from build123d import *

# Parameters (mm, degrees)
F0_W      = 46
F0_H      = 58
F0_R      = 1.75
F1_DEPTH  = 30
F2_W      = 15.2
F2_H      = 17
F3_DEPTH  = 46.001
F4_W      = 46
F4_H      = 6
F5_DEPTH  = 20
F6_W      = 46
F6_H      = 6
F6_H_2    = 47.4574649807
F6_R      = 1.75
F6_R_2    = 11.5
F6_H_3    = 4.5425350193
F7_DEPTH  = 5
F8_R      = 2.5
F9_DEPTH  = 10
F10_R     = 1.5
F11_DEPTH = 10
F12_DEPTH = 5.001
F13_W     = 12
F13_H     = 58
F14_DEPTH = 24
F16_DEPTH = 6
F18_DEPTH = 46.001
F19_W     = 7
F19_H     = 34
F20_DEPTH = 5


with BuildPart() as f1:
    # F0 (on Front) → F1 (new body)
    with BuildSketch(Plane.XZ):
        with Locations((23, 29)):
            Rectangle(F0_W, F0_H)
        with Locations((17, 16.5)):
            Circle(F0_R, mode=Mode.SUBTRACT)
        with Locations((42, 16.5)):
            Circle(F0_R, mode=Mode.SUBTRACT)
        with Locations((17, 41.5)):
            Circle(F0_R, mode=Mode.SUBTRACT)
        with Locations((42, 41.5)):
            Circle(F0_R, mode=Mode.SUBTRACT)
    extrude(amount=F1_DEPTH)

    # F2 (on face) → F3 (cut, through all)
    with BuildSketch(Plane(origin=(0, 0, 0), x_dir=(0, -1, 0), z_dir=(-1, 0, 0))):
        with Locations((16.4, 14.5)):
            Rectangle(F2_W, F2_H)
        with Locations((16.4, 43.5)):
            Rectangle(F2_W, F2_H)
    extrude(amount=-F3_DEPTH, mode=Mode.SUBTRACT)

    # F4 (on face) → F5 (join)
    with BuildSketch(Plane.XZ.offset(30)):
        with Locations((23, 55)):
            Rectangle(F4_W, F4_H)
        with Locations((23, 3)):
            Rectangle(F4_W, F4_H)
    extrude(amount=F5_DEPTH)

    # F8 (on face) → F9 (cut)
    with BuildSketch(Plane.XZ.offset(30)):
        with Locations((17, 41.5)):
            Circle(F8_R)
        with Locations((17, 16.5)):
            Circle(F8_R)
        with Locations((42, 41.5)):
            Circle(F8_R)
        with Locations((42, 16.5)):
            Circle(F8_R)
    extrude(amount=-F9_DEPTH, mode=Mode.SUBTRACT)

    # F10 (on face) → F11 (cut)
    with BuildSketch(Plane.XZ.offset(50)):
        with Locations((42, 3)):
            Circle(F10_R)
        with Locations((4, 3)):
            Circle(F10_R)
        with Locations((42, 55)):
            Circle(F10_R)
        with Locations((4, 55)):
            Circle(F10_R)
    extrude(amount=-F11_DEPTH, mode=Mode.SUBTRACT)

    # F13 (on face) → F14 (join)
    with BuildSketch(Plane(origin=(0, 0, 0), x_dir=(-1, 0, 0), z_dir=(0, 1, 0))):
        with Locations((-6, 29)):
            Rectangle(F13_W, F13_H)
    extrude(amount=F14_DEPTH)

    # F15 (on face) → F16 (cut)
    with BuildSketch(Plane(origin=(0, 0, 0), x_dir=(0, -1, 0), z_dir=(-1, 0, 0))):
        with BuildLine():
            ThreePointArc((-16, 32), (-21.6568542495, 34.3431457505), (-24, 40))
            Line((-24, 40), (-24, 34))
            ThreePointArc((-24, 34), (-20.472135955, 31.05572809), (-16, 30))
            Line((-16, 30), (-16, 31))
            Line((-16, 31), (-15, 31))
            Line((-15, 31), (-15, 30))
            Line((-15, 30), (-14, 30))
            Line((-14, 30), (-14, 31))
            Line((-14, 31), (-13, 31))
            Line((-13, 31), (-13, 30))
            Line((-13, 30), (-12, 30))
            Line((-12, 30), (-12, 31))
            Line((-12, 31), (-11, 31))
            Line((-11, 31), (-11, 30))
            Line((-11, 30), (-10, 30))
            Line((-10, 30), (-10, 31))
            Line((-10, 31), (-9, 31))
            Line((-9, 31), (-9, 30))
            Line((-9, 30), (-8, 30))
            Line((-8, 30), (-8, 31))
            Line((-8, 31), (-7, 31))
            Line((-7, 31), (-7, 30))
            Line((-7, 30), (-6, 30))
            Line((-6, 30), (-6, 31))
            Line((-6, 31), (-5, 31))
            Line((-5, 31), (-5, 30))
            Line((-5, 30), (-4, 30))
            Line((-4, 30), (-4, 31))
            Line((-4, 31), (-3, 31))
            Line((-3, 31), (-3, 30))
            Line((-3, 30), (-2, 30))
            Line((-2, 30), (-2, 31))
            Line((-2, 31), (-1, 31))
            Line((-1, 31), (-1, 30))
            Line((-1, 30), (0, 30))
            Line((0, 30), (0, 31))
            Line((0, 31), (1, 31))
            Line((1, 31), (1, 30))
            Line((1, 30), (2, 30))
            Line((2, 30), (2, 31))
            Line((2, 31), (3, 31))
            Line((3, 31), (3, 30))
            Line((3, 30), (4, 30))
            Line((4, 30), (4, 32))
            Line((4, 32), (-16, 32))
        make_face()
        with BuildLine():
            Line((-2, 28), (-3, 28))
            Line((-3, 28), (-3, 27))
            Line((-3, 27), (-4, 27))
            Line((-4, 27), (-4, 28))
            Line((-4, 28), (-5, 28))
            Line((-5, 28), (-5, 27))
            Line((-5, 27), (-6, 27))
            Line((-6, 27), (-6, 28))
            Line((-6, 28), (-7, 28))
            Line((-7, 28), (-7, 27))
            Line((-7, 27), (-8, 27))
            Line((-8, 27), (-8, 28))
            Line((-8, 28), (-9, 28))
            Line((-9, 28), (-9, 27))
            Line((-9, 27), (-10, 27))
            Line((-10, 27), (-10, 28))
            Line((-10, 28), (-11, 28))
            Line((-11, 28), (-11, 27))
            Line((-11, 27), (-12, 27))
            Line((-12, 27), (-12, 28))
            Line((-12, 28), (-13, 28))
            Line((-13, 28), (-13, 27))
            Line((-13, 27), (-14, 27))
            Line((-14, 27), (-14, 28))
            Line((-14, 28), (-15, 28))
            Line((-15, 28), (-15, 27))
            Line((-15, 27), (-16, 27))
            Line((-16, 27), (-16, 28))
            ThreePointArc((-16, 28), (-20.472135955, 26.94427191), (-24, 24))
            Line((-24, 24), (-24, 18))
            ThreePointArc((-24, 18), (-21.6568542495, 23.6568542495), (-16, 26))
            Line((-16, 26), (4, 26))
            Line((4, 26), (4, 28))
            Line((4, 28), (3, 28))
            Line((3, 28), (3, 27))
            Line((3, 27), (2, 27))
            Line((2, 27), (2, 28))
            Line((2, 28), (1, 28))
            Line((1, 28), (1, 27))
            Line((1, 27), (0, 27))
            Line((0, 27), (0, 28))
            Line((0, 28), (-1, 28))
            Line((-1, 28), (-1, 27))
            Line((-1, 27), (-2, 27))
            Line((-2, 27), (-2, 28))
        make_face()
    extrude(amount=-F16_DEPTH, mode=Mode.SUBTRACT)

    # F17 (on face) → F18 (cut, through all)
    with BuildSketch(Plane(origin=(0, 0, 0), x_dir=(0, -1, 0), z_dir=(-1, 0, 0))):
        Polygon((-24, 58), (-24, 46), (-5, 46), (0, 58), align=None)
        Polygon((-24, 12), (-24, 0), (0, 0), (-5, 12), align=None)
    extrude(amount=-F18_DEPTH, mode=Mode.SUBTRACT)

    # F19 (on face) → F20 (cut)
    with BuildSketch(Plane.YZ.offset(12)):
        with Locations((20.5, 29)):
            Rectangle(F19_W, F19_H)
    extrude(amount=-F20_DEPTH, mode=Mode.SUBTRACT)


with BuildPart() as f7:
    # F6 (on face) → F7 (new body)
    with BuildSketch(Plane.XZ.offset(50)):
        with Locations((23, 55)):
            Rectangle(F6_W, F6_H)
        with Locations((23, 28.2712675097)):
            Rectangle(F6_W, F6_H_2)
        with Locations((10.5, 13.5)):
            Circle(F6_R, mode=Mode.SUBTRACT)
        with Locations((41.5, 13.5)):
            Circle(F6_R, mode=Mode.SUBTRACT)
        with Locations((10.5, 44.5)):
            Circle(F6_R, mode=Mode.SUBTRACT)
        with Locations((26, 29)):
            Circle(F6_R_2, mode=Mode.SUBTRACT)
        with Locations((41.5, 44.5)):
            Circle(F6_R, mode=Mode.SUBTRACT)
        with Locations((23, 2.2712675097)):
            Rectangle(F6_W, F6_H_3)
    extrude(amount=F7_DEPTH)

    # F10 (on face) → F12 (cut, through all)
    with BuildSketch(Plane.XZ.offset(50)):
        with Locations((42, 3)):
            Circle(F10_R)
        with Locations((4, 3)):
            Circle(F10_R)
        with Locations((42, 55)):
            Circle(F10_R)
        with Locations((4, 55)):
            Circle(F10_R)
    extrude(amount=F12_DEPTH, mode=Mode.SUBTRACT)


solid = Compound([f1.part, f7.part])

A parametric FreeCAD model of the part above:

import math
import FreeCAD as App
import Part
import Sketcher


def add_polygon(sketch, points):
    """Adds a closed chain of lines whose ends are joined by coincident constraints."""
    first, n = sketch.GeometryCount, len(points)
    for a, b in zip(points, points[1:] + points[:1]):
        sketch.addGeometry(Part.LineSegment(App.Vector(*a, 0), App.Vector(*b, 0)), False)
    for i in range(n):
        sketch.addConstraint(Sketcher.Constraint("Coincident", first + i, 2, first + (i + 1) % n, 1))

doc = App.newDocument("Part")
body = doc.addObject("PartDesign::Body", "Body")

# Sketch on XZ plane
sketch1 = doc.addObject("Sketcher::SketchObject", "Sketch")
body.addObject(sketch1)
sketch1.AttachmentSupport = (doc.XZ_Plane, [""])
sketch1.MapMode = "FlatFace"
add_polygon(sketch1, [(0, 58), (0, 0), (46, 0), (46, 58)])  # lines 0-3
sketch1.addGeometry(Part.Circle(App.Vector(17, 16.5, 0), App.Vector(0, 0, 1), 1.75), False)  # 4
sketch1.addGeometry(Part.Circle(App.Vector(42, 16.5, 0), App.Vector(0, 0, 1), 1.75), False)  # 5
sketch1.addGeometry(Part.Circle(App.Vector(17, 41.5, 0), App.Vector(0, 0, 1), 1.75), False)  # 6
sketch1.addGeometry(Part.Circle(App.Vector(42, 41.5, 0), App.Vector(0, 0, 1), 1.75), False)  # 7
sketch1.addConstraint(Sketcher.Constraint("Vertical", 0))
sketch1.addConstraint(Sketcher.Constraint("Horizontal", 1))
sketch1.addConstraint(Sketcher.Constraint("Vertical", 2))
sketch1.addConstraint(Sketcher.Constraint("Horizontal", 3))
sketch1.addConstraint(Sketcher.Constraint("Coincident", 0, 2, -1, 1))
sketch1.addConstraint(Sketcher.Constraint("Equal", 4, 5))
sketch1.addConstraint(Sketcher.Constraint("Equal", 5, 6))
sketch1.addConstraint(Sketcher.Constraint("Equal", 6, 7))
sketch1.addConstraint(Sketcher.Constraint("Horizontal", 4, 3, 5, 3))
sketch1.addConstraint(Sketcher.Constraint("Horizontal", 6, 3, 7, 3))
sketch1.addConstraint(Sketcher.Constraint("Vertical", 4, 3, 6, 3))
sketch1.addConstraint(Sketcher.Constraint("Vertical", 5, 3, 7, 3))
sketch1.addConstraint(Sketcher.Constraint("Diameter", 4, 3.5))
sketch1.addConstraint(Sketcher.Constraint("DistanceX", 1, 1, 1, 2, 46.0))
sketch1.addConstraint(Sketcher.Constraint("DistanceY", 0, 2, 0, 1, 58.0))
sketch1.addConstraint(Sketcher.Constraint("DistanceX", -1, 1, 4, 3, 17.0))
sketch1.addConstraint(Sketcher.Constraint("DistanceX", -1, 1, 5, 3, 42.0))
sketch1.addConstraint(Sketcher.Constraint("DistanceY", 4, 3, 6, 3, 25.0))
sketch1.addConstraint(Sketcher.Constraint("DistanceY", -1, 1, 4, 3, 16.5))
pad1 = doc.addObject("PartDesign::Pad", "Pad")
body.addObject(pad1)
pad1.Profile = sketch1
pad1.Length = 30

# Sketch on YZ plane
sketch2 = doc.addObject("Sketcher::SketchObject", "Sketch001")
body.addObject(sketch2)
sketch2.AttachmentSupport = (doc.YZ_Plane, [""])
sketch2.MapMode = "FlatFace"
add_polygon(sketch2, [(-8.8, 23), (-8.8, 6), (-24, 6), (-24, 23)])  # lines 0-3
add_polygon(sketch2, [(-8.8, 52), (-8.8, 35), (-24, 35), (-24, 52)])  # lines 4-7
sketch2.addConstraint(Sketcher.Constraint("Vertical", 0))
sketch2.addConstraint(Sketcher.Constraint("Horizontal", 1))
sketch2.addConstraint(Sketcher.Constraint("Vertical", 2))
sketch2.addConstraint(Sketcher.Constraint("Horizontal", 3))
sketch2.addConstraint(Sketcher.Constraint("Vertical", 4))
sketch2.addConstraint(Sketcher.Constraint("Horizontal", 5))
sketch2.addConstraint(Sketcher.Constraint("Vertical", 6))
sketch2.addConstraint(Sketcher.Constraint("Horizontal", 7))
sketch2.addConstraint(Sketcher.Constraint("Vertical", 3, 2, 4, 2))
sketch2.addConstraint(Sketcher.Constraint("Vertical", 2, 2, 5, 2))
sketch2.addConstraint(Sketcher.Constraint("Equal", 2, 4))
sketch2.addConstraint(Sketcher.Constraint("DistanceY", 0, 2, 0, 1, 17.0))
sketch2.addConstraint(Sketcher.Constraint("DistanceX", 1, 2, 1, 1, 15.2))
sketch2.addConstraint(Sketcher.Constraint("DistanceY", -1, 1, 0, 2, 6.0))
sketch2.addConstraint(Sketcher.Constraint("DistanceX", 1, 2, -1, 1, 24.0))
sketch2.addConstraint(Sketcher.Constraint("DistanceY", -1, 1, 4, 2, 35.0))
pocket1 = doc.addObject("PartDesign::Pocket", "Pocket")
body.addObject(pocket1)
pocket1.Profile = sketch2
pocket1.Type = "ThroughAll"
pocket1.Reversed = True

# Sketch on XZ plane
sketch3 = doc.addObject("Sketcher::SketchObject", "Sketch002")
body.addObject(sketch3)
sketch3.AttachmentSupport = (doc.XZ_Plane, [""])
sketch3.MapMode = "FlatFace"
sketch3.AttachmentOffset = App.Placement(App.Vector(0, 0, 30), App.Rotation())
add_polygon(sketch3, [(0, 58), (0, 52), (46, 52), (46, 58)])  # lines 0-3
add_polygon(sketch3, [(0, 6), (0, 0), (46, 0), (46, 6)])  # lines 4-7
sketch3.addConstraint(Sketcher.Constraint("Vertical", 0))
sketch3.addConstraint(Sketcher.Constraint("Horizontal", 1))
sketch3.addConstraint(Sketcher.Constraint("Vertical", 2))
sketch3.addConstraint(Sketcher.Constraint("Horizontal", 3))
sketch3.addConstraint(Sketcher.Constraint("Vertical", 4))
sketch3.addConstraint(Sketcher.Constraint("Horizontal", 5))
sketch3.addConstraint(Sketcher.Constraint("Vertical", 6))
sketch3.addConstraint(Sketcher.Constraint("Horizontal", 7))
sketch3.addConstraint(Sketcher.Constraint("Coincident", 4, 2, -1, 1))
sketch3.addConstraint(Sketcher.Constraint("PointOnObject", 0, 2, -2))
sketch3.addConstraint(Sketcher.Constraint("Vertical", 2, 2, 5, 2))
sketch3.addConstraint(Sketcher.Constraint("Equal", 2, 4))
sketch3.addConstraint(Sketcher.Constraint("DistanceX", 1, 1, 1, 2, 46.0))
sketch3.addConstraint(Sketcher.Constraint("DistanceY", 0, 2, 0, 1, 6.0))
sketch3.addConstraint(Sketcher.Constraint("DistanceY", -1, 1, 0, 2, 52.0))
pad2 = doc.addObject("PartDesign::Pad", "Pad001")
body.addObject(pad2)
pad2.Profile = sketch3
pad2.Length = 20

# Sketch on XZ plane
sketch4 = doc.addObject("Sketcher::SketchObject", "Sketch003")
body.addObject(sketch4)
sketch4.AttachmentSupport = (doc.XZ_Plane, [""])
sketch4.MapMode = "FlatFace"
sketch4.AttachmentOffset = App.Placement(App.Vector(0, 0, 30), App.Rotation())
sketch4.addGeometry(Part.Circle(App.Vector(17, 41.5, 0), App.Vector(0, 0, 1), 2.5), False)
sketch4.addGeometry(Part.Circle(App.Vector(17, 16.5, 0), App.Vector(0, 0, 1), 2.5), False)
sketch4.addGeometry(Part.Circle(App.Vector(42, 41.5, 0), App.Vector(0, 0, 1), 2.5), False)
sketch4.addGeometry(Part.Circle(App.Vector(42, 16.5, 0), App.Vector(0, 0, 1), 2.5), False)
sketch4.addConstraint(Sketcher.Constraint("Equal", 0, 1))
sketch4.addConstraint(Sketcher.Constraint("Equal", 1, 2))
sketch4.addConstraint(Sketcher.Constraint("Equal", 2, 3))
sketch4.addConstraint(Sketcher.Constraint("Horizontal", 0, 3, 2, 3))
sketch4.addConstraint(Sketcher.Constraint("Horizontal", 1, 3, 3, 3))
sketch4.addConstraint(Sketcher.Constraint("Vertical", 0, 3, 1, 3))
sketch4.addConstraint(Sketcher.Constraint("Vertical", 2, 3, 3, 3))
sketch4.addConstraint(Sketcher.Constraint("Diameter", 0, 5.0))
sketch4.addConstraint(Sketcher.Constraint("DistanceX", -1, 1, 0, 3, 17.0))
sketch4.addConstraint(Sketcher.Constraint("DistanceX", -1, 1, 2, 3, 42.0))
sketch4.addConstraint(Sketcher.Constraint("DistanceY", 1, 3, 0, 3, 25.0))
sketch4.addConstraint(Sketcher.Constraint("DistanceY", -1, 1, 0, 3, 41.5))
pocket2 = doc.addObject("PartDesign::Pocket", "Pocket001")
body.addObject(pocket2)
pocket2.Profile = sketch4
pocket2.Length = 10

# Sketch on XZ plane
sketch5 = doc.addObject("Sketcher::SketchObject", "Sketch004")
body.addObject(sketch5)
sketch5.AttachmentSupport = (doc.XZ_Plane, [""])
sketch5.MapMode = "FlatFace"
sketch5.AttachmentOffset = App.Placement(App.Vector(0, 0, 50), App.Rotation())
sketch5.addGeometry(Part.Circle(App.Vector(42, 3, 0), App.Vector(0, 0, 1), 1.5), False)
sketch5.addGeometry(Part.Circle(App.Vector(4, 3, 0), App.Vector(0, 0, 1), 1.5), False)
sketch5.addGeometry(Part.Circle(App.Vector(42, 55, 0), App.Vector(0, 0, 1), 1.5), False)
sketch5.addGeometry(Part.Circle(App.Vector(4, 55, 0), App.Vector(0, 0, 1), 1.5), False)
sketch5.addConstraint(Sketcher.Constraint("Equal", 0, 1))
sketch5.addConstraint(Sketcher.Constraint("Equal", 1, 2))
sketch5.addConstraint(Sketcher.Constraint("Equal", 2, 3))
sketch5.addConstraint(Sketcher.Constraint("Horizontal", 0, 3, 1, 3))
sketch5.addConstraint(Sketcher.Constraint("Horizontal", 2, 3, 3, 3))
sketch5.addConstraint(Sketcher.Constraint("Vertical", 0, 3, 2, 3))
sketch5.addConstraint(Sketcher.Constraint("Vertical", 1, 3, 3, 3))
sketch5.addConstraint(Sketcher.Constraint("Diameter", 0, 3.0))
sketch5.addConstraint(Sketcher.Constraint("DistanceX", -1, 1, 0, 3, 42.0))
sketch5.addConstraint(Sketcher.Constraint("DistanceY", -1, 1, 0, 3, 3.0))
sketch5.addConstraint(Sketcher.Constraint("DistanceX", -1, 1, 1, 3, 4.0))
sketch5.addConstraint(Sketcher.Constraint("DistanceY", -1, 1, 2, 3, 55.0))
pocket3 = doc.addObject("PartDesign::Pocket", "Pocket002")
body.addObject(pocket3)
pocket3.Profile = sketch5
pocket3.Length = 10

# Sketch on XZ plane
sketch6 = doc.addObject("Sketcher::SketchObject", "Sketch005")
body.addObject(sketch6)
sketch6.AttachmentSupport = (doc.XZ_Plane, [""])
sketch6.MapMode = "FlatFace"
add_polygon(sketch6, [(12, 58), (12, 0), (0, 0), (0, 58)])  # lines 0-3
sketch6.addConstraint(Sketcher.Constraint("Vertical", 0))
sketch6.addConstraint(Sketcher.Constraint("Horizontal", 1))
sketch6.addConstraint(Sketcher.Constraint("Vertical", 2))
sketch6.addConstraint(Sketcher.Constraint("Horizontal", 3))
sketch6.addConstraint(Sketcher.Constraint("Coincident", 1, 2, -1, 1))
sketch6.addConstraint(Sketcher.Constraint("DistanceX", 1, 2, 1, 1, 12.0))
sketch6.addConstraint(Sketcher.Constraint("DistanceY", 0, 2, 0, 1, 58.0))
pad3 = doc.addObject("PartDesign::Pad", "Pad002")
body.addObject(pad3)
pad3.Profile = sketch6
pad3.Length = 24
pad3.Reversed = True

# Sketch on YZ plane
sketch7 = doc.addObject("Sketcher::SketchObject", "Sketch006")
body.addObject(sketch7)
sketch7.AttachmentSupport = (doc.YZ_Plane, [""])
sketch7.MapMode = "FlatFace"
sketch7.addGeometry(Part.ArcOfCircle(Part.Circle(App.Vector(16, 40, 0), App.Vector(0, 0, 1), 8), math.radians(-90), math.radians(0)), False)
sketch7.addGeometry(Part.LineSegment(App.Vector(24, 40, 0), App.Vector(24, 34, 0)), False)
sketch7.addGeometry(Part.ArcOfCircle(Part.Circle(App.Vector(16, 40, 0), App.Vector(0, 0, 1), 10), math.radians(-90), math.radians(-36.869898)), False)
sketch7.addGeometry(Part.LineSegment(App.Vector(16, 30, 0), App.Vector(16, 31, 0)), False)
sketch7.addGeometry(Part.LineSegment(App.Vector(16, 31, 0), App.Vector(15, 31, 0)), False)
sketch7.addGeometry(Part.LineSegment(App.Vector(15, 31, 0), App.Vector(15, 30, 0)), False)
sketch7.addGeometry(Part.LineSegment(App.Vector(15, 30, 0), App.Vector(14, 30, 0)), False)
sketch7.addGeometry(Part.LineSegment(App.Vector(14, 30, 0), App.Vector(14, 31, 0)), False)
sketch7.addGeometry(Part.LineSegment(App.Vector(14, 31, 0), App.Vector(13, 31, 0)), False)
sketch7.addGeometry(Part.LineSegment(App.Vector(13, 31, 0), App.Vector(13, 30, 0)), False)
sketch7.addGeometry(Part.LineSegment(App.Vector(13, 30, 0), App.Vector(12, 30, 0)), False)
sketch7.addGeometry(Part.LineSegment(App.Vector(12, 30, 0), App.Vector(12, 31, 0)), False)
sketch7.addGeometry(Part.LineSegment(App.Vector(12, 31, 0), App.Vector(11, 31, 0)), False)
sketch7.addGeometry(Part.LineSegment(App.Vector(11, 31, 0), App.Vector(11, 30, 0)), False)
sketch7.addGeometry(Part.LineSegment(App.Vector(11, 30, 0), App.Vector(10, 30, 0)), False)
sketch7.addGeometry(Part.LineSegment(App.Vector(10, 30, 0), App.Vector(10, 31, 0)), False)
sketch7.addGeometry(Part.LineSegment(App.Vector(10, 31, 0), App.Vector(9, 31, 0)), False)
sketch7.addGeometry(Part.LineSegment(App.Vector(9, 31, 0), App.Vector(9, 30, 0)), False)
sketch7.addGeometry(Part.LineSegment(App.Vector(9, 30, 0), App.Vector(8, 30, 0)), False)
sketch7.addGeometry(Part.LineSegment(App.Vector(8, 30, 0), App.Vector(8, 31, 0)), False)
sketch7.addGeometry(Part.LineSegment(App.Vector(8, 31, 0), App.Vector(7, 31, 0)), False)
sketch7.addGeometry(Part.LineSegment(App.Vector(7, 31, 0), App.Vector(7, 30, 0)), False)
sketch7.addGeometry(Part.LineSegment(App.Vector(7, 30, 0), App.Vector(6, 30, 0)), False)
sketch7.addGeometry(Part.LineSegment(App.Vector(6, 30, 0), App.Vector(6, 31, 0)), False)
sketch7.addGeometry(Part.LineSegment(App.Vector(6, 31, 0), App.Vector(5, 31, 0)), False)
sketch7.addGeometry(Part.LineSegment(App.Vector(5, 31, 0), App.Vector(5, 30, 0)), False)
sketch7.addGeometry(Part.LineSegment(App.Vector(5, 30, 0), App.Vector(4, 30, 0)), False)
sketch7.addGeometry(Part.LineSegment(App.Vector(4, 30, 0), App.Vector(4, 31, 0)), False)
sketch7.addGeometry(Part.LineSegment(App.Vector(4, 31, 0), App.Vector(3, 31, 0)), False)
sketch7.addGeometry(Part.LineSegment(App.Vector(3, 31, 0), App.Vector(3, 30, 0)), False)
sketch7.addGeometry(Part.LineSegment(App.Vector(3, 30, 0), App.Vector(2, 30, 0)), False)
sketch7.addGeometry(Part.LineSegment(App.Vector(2, 30, 0), App.Vector(2, 31, 0)), False)
sketch7.addGeometry(Part.LineSegment(App.Vector(2, 31, 0), App.Vector(1, 31, 0)), False)
sketch7.addGeometry(Part.LineSegment(App.Vector(1, 31, 0), App.Vector(1, 30, 0)), False)
sketch7.addGeometry(Part.LineSegment(App.Vector(1, 30, 0), App.Vector(0, 30, 0)), False)
sketch7.addGeometry(Part.LineSegment(App.Vector(0, 30, 0), App.Vector(0, 31, 0)), False)
sketch7.addGeometry(Part.LineSegment(App.Vector(0, 31, 0), App.Vector(-1, 31, 0)), False)
sketch7.addGeometry(Part.LineSegment(App.Vector(-1, 31, 0), App.Vector(-1, 30, 0)), False)
sketch7.addGeometry(Part.LineSegment(App.Vector(-1, 30, 0), App.Vector(-2, 30, 0)), False)
sketch7.addGeometry(Part.LineSegment(App.Vector(-2, 30, 0), App.Vector(-2, 31, 0)), False)
sketch7.addGeometry(Part.LineSegment(App.Vector(-2, 31, 0), App.Vector(-3, 31, 0)), False)
sketch7.addGeometry(Part.LineSegment(App.Vector(-3, 31, 0), App.Vector(-3, 30, 0)), False)
sketch7.addGeometry(Part.LineSegment(App.Vector(-3, 30, 0), App.Vector(-4, 30, 0)), False)
sketch7.addGeometry(Part.LineSegment(App.Vector(-4, 30, 0), App.Vector(-4, 32, 0)), False)
sketch7.addGeometry(Part.LineSegment(App.Vector(-4, 32, 0), App.Vector(16, 32, 0)), False)
sketch7.addGeometry(Part.LineSegment(App.Vector(2, 28, 0), App.Vector(3, 28, 0)), False)
sketch7.addGeometry(Part.LineSegment(App.Vector(3, 28, 0), App.Vector(3, 27, 0)), False)
sketch7.addGeometry(Part.LineSegment(App.Vector(3, 27, 0), App.Vector(4, 27, 0)), False)
sketch7.addGeometry(Part.LineSegment(App.Vector(4, 27, 0), App.Vector(4, 28, 0)), False)
sketch7.addGeometry(Part.LineSegment(App.Vector(4, 28, 0), App.Vector(5, 28, 0)), False)
sketch7.addGeometry(Part.LineSegment(App.Vector(5, 28, 0), App.Vector(5, 27, 0)), False)
sketch7.addGeometry(Part.LineSegment(App.Vector(5, 27, 0), App.Vector(6, 27, 0)), False)
sketch7.addGeometry(Part.LineSegment(App.Vector(6, 27, 0), App.Vector(6, 28, 0)), False)
sketch7.addGeometry(Part.LineSegment(App.Vector(6, 28, 0), App.Vector(7, 28, 0)), False)
sketch7.addGeometry(Part.LineSegment(App.Vector(7, 28, 0), App.Vector(7, 27, 0)), False)
sketch7.addGeometry(Part.LineSegment(App.Vector(7, 27, 0), App.Vector(8, 27, 0)), False)
sketch7.addGeometry(Part.LineSegment(App.Vector(8, 27, 0), App.Vector(8, 28, 0)), False)
sketch7.addGeometry(Part.LineSegment(App.Vector(8, 28, 0), App.Vector(9, 28, 0)), False)
sketch7.addGeometry(Part.LineSegment(App.Vector(9, 28, 0), App.Vector(9, 27, 0)), False)
sketch7.addGeometry(Part.LineSegment(App.Vector(9, 27, 0), App.Vector(10, 27, 0)), False)
sketch7.addGeometry(Part.LineSegment(App.Vector(10, 27, 0), App.Vector(10, 28, 0)), False)
sketch7.addGeometry(Part.LineSegment(App.Vector(10, 28, 0), App.Vector(11, 28, 0)), False)
sketch7.addGeometry(Part.LineSegment(App.Vector(11, 28, 0), App.Vector(11, 27, 0)), False)
sketch7.addGeometry(Part.LineSegment(App.Vector(11, 27, 0), App.Vector(12, 27, 0)), False)
sketch7.addGeometry(Part.LineSegment(App.Vector(12, 27, 0), App.Vector(12, 28, 0)), False)
sketch7.addGeometry(Part.LineSegment(App.Vector(12, 28, 0), App.Vector(13, 28, 0)), False)
sketch7.addGeometry(Part.LineSegment(App.Vector(13, 28, 0), App.Vector(13, 27, 0)), False)
sketch7.addGeometry(Part.LineSegment(App.Vector(13, 27, 0), App.Vector(14, 27, 0)), False)
sketch7.addGeometry(Part.LineSegment(App.Vector(14, 27, 0), App.Vector(14, 28, 0)), False)
sketch7.addGeometry(Part.LineSegment(App.Vector(14, 28, 0), App.Vector(15, 28, 0)), False)
sketch7.addGeometry(Part.LineSegment(App.Vector(15, 28, 0), App.Vector(15, 27, 0)), False)
sketch7.addGeometry(Part.LineSegment(App.Vector(15, 27, 0), App.Vector(16, 27, 0)), False)
sketch7.addGeometry(Part.LineSegment(App.Vector(16, 27, 0), App.Vector(16, 28, 0)), False)
sketch7.addGeometry(Part.ArcOfCircle(Part.Circle(App.Vector(16, 18, 0), App.Vector(0, 0, 1), 10), math.radians(36.869898), math.radians(90)), False)
sketch7.addGeometry(Part.LineSegment(App.Vector(24, 24, 0), App.Vector(24, 18, 0)), False)
sketch7.addGeometry(Part.ArcOfCircle(Part.Circle(App.Vector(16, 18, 0), App.Vector(0, 0, 1), 8), math.radians(0), math.radians(90)), False)
sketch7.addGeometry(Part.LineSegment(App.Vector(16, 26, 0), App.Vector(-4, 26, 0)), False)
sketch7.addGeometry(Part.LineSegment(App.Vector(-4, 26, 0), App.Vector(-4, 28, 0)), False)
sketch7.addGeometry(Part.LineSegment(App.Vector(-4, 28, 0), App.Vector(-3, 28, 0)), False)
sketch7.addGeometry(Part.LineSegment(App.Vector(-3, 28, 0), App.Vector(-3, 27, 0)), False)
sketch7.addGeometry(Part.LineSegment(App.Vector(-3, 27, 0), App.Vector(-2, 27, 0)), False)
sketch7.addGeometry(Part.LineSegment(App.Vector(-2, 27, 0), App.Vector(-2, 28, 0)), False)
sketch7.addGeometry(Part.LineSegment(App.Vector(-2, 28, 0), App.Vector(-1, 28, 0)), False)
sketch7.addGeometry(Part.LineSegment(App.Vector(-1, 28, 0), App.Vector(-1, 27, 0)), False)
sketch7.addGeometry(Part.LineSegment(App.Vector(-1, 27, 0), App.Vector(0, 27, 0)), False)
sketch7.addGeometry(Part.LineSegment(App.Vector(0, 27, 0), App.Vector(0, 28, 0)), False)
sketch7.addGeometry(Part.LineSegment(App.Vector(0, 28, 0), App.Vector(1, 28, 0)), False)
sketch7.addGeometry(Part.LineSegment(App.Vector(1, 28, 0), App.Vector(1, 27, 0)), False)
sketch7.addGeometry(Part.LineSegment(App.Vector(1, 27, 0), App.Vector(2, 27, 0)), False)
sketch7.addGeometry(Part.LineSegment(App.Vector(2, 27, 0), App.Vector(2, 28, 0)), False)
sketch7.addConstraint(Sketcher.Constraint("Tangent", 0, 2, 1, 1))
sketch7.addConstraint(Sketcher.Constraint("Coincident", 1, 2, 2, 2))
sketch7.addConstraint(Sketcher.Constraint("Coincident", 2, 1, 3, 1))
sketch7.addConstraint(Sketcher.Constraint("Coincident", 3, 2, 4, 1))
sketch7.addConstraint(Sketcher.Constraint("Coincident", 4, 2, 5, 1))
sketch7.addConstraint(Sketcher.Constraint("Coincident", 5, 2, 6, 1))
sketch7.addConstraint(Sketcher.Constraint("Coincident", 6, 2, 7, 1))
sketch7.addConstraint(Sketcher.Constraint("Coincident", 7, 2, 8, 1))
sketch7.addConstraint(Sketcher.Constraint("Coincident", 8, 2, 9, 1))
sketch7.addConstraint(Sketcher.Constraint("Coincident", 9, 2, 10, 1))
sketch7.addConstraint(Sketcher.Constraint("Coincident", 10, 2, 11, 1))
sketch7.addConstraint(Sketcher.Constraint("Coincident", 11, 2, 12, 1))
sketch7.addConstraint(Sketcher.Constraint("Coincident", 12, 2, 13, 1))
sketch7.addConstraint(Sketcher.Constraint("Coincident", 13, 2, 14, 1))
sketch7.addConstraint(Sketcher.Constraint("Coincident", 14, 2, 15, 1))
sketch7.addConstraint(Sketcher.Constraint("Coincident", 15, 2, 16, 1))
sketch7.addConstraint(Sketcher.Constraint("Coincident", 16, 2, 17, 1))
sketch7.addConstraint(Sketcher.Constraint("Coincident", 17, 2, 18, 1))
sketch7.addConstraint(Sketcher.Constraint("Coincident", 18, 2, 19, 1))
sketch7.addConstraint(Sketcher.Constraint("Coincident", 19, 2, 20, 1))
sketch7.addConstraint(Sketcher.Constraint("Coincident", 20, 2, 21, 1))
sketch7.addConstraint(Sketcher.Constraint("Coincident", 21, 2, 22, 1))
sketch7.addConstraint(Sketcher.Constraint("Coincident", 22, 2, 23, 1))
sketch7.addConstraint(Sketcher.Constraint("Coincident", 23, 2, 24, 1))
sketch7.addConstraint(Sketcher.Constraint("Coincident", 24, 2, 25, 1))
sketch7.addConstraint(Sketcher.Constraint("Coincident", 25, 2, 26, 1))
sketch7.addConstraint(Sketcher.Constraint("Coincident", 26, 2, 27, 1))
sketch7.addConstraint(Sketcher.Constraint("Coincident", 27, 2, 28, 1))
sketch7.addConstraint(Sketcher.Constraint("Coincident", 28, 2, 29, 1))
sketch7.addConstraint(Sketcher.Constraint("Coincident", 29, 2, 30, 1))
sketch7.addConstraint(Sketcher.Constraint("Coincident", 30, 2, 31, 1))
sketch7.addConstraint(Sketcher.Constraint("Coincident", 31, 2, 32, 1))
sketch7.addConstraint(Sketcher.Constraint("Coincident", 32, 2, 33, 1))
sketch7.addConstraint(Sketcher.Constraint("Coincident", 33, 2, 34, 1))
sketch7.addConstraint(Sketcher.Constraint("Coincident", 34, 2, 35, 1))
sketch7.addConstraint(Sketcher.Constraint("Coincident", 35, 2, 36, 1))
sketch7.addConstraint(Sketcher.Constraint("Coincident", 36, 2, 37, 1))
sketch7.addConstraint(Sketcher.Constraint("Coincident", 37, 2, 38, 1))
sketch7.addConstraint(Sketcher.Constraint("Coincident", 38, 2, 39, 1))
sketch7.addConstraint(Sketcher.Constraint("Coincident", 39, 2, 40, 1))
sketch7.addConstraint(Sketcher.Constraint("Coincident", 40, 2, 41, 1))
sketch7.addConstraint(Sketcher.Constraint("Coincident", 41, 2, 42, 1))
sketch7.addConstraint(Sketcher.Constraint("Coincident", 42, 2, 43, 1))
sketch7.addConstraint(Sketcher.Constraint("Coincident", 43, 2, 44, 1))
sketch7.addConstraint(Sketcher.Constraint("Tangent", 44, 2, 0, 1))
sketch7.addConstraint(Sketcher.Constraint("Coincident", 45, 2, 46, 1))
sketch7.addConstraint(Sketcher.Constraint("Coincident", 46, 2, 47, 1))
sketch7.addConstraint(Sketcher.Constraint("Coincident", 47, 2, 48, 1))
sketch7.addConstraint(Sketcher.Constraint("Coincident", 48, 2, 49, 1))
sketch7.addConstraint(Sketcher.Constraint("Coincident", 49, 2, 50, 1))
sketch7.addConstraint(Sketcher.Constraint("Coincident", 50, 2, 51, 1))
sketch7.addConstraint(Sketcher.Constraint("Coincident", 51, 2, 52, 1))
sketch7.addConstraint(Sketcher.Constraint("Coincident", 52, 2, 53, 1))
sketch7.addConstraint(Sketcher.Constraint("Coincident", 53, 2, 54, 1))
sketch7.addConstraint(Sketcher.Constraint("Coincident", 54, 2, 55, 1))
sketch7.addConstraint(Sketcher.Constraint("Coincident", 55, 2, 56, 1))
sketch7.addConstraint(Sketcher.Constraint("Coincident", 56, 2, 57, 1))
sketch7.addConstraint(Sketcher.Constraint("Coincident", 57, 2, 58, 1))
sketch7.addConstraint(Sketcher.Constraint("Coincident", 58, 2, 59, 1))
sketch7.addConstraint(Sketcher.Constraint("Coincident", 59, 2, 60, 1))
sketch7.addConstraint(Sketcher.Constraint("Coincident", 60, 2, 61, 1))
sketch7.addConstraint(Sketcher.Constraint("Coincident", 61, 2, 62, 1))
sketch7.addConstraint(Sketcher.Constraint("Coincident", 62, 2, 63, 1))
sketch7.addConstraint(Sketcher.Constraint("Coincident", 63, 2, 64, 1))
sketch7.addConstraint(Sketcher.Constraint("Coincident", 64, 2, 65, 1))
sketch7.addConstraint(Sketcher.Constraint("Coincident", 65, 2, 66, 1))
sketch7.addConstraint(Sketcher.Constraint("Coincident", 66, 2, 67, 1))
sketch7.addConstraint(Sketcher.Constraint("Coincident", 67, 2, 68, 1))
sketch7.addConstraint(Sketcher.Constraint("Coincident", 68, 2, 69, 1))
sketch7.addConstraint(Sketcher.Constraint("Coincident", 69, 2, 70, 1))
sketch7.addConstraint(Sketcher.Constraint("Coincident", 70, 2, 71, 1))
sketch7.addConstraint(Sketcher.Constraint("Coincident", 71, 2, 72, 1))
sketch7.addConstraint(Sketcher.Constraint("Coincident", 72, 2, 73, 2))
sketch7.addConstraint(Sketcher.Constraint("Coincident", 73, 1, 74, 1))
sketch7.addConstraint(Sketcher.Constraint("Tangent", 74, 2, 75, 1))
sketch7.addConstraint(Sketcher.Constraint("Tangent", 75, 2, 76, 1))
sketch7.addConstraint(Sketcher.Constraint("Coincident", 76, 2, 77, 1))
sketch7.addConstraint(Sketcher.Constraint("Coincident", 77, 2, 78, 1))
sketch7.addConstraint(Sketcher.Constraint("Coincident", 78, 2, 79, 1))
sketch7.addConstraint(Sketcher.Constraint("Coincident", 79, 2, 80, 1))
sketch7.addConstraint(Sketcher.Constraint("Coincident", 80, 2, 81, 1))
sketch7.addConstraint(Sketcher.Constraint("Coincident", 81, 2, 82, 1))
sketch7.addConstraint(Sketcher.Constraint("Coincident", 82, 2, 83, 1))
sketch7.addConstraint(Sketcher.Constraint("Coincident", 83, 2, 84, 1))
sketch7.addConstraint(Sketcher.Constraint("Coincident", 84, 2, 85, 1))
sketch7.addConstraint(Sketcher.Constraint("Coincident", 85, 2, 86, 1))
sketch7.addConstraint(Sketcher.Constraint("Coincident", 86, 2, 87, 1))
sketch7.addConstraint(Sketcher.Constraint("Coincident", 87, 2, 88, 1))
sketch7.addConstraint(Sketcher.Constraint("Coincident", 88, 2, 89, 1))
sketch7.addConstraint(Sketcher.Constraint("Coincident", 89, 2, 45, 1))
sketch7.addConstraint(Sketcher.Constraint("Vertical", 1))
sketch7.addConstraint(Sketcher.Constraint("Vertical", 3))
sketch7.addConstraint(Sketcher.Constraint("Horizontal", 4))
sketch7.addConstraint(Sketcher.Constraint("Vertical", 5))
sketch7.addConstraint(Sketcher.Constraint("Horizontal", 6))
sketch7.addConstraint(Sketcher.Constraint("Vertical", 7))
sketch7.addConstraint(Sketcher.Constraint("Horizontal", 8))
sketch7.addConstraint(Sketcher.Constraint("Vertical", 9))
sketch7.addConstraint(Sketcher.Constraint("Horizontal", 10))
sketch7.addConstraint(Sketcher.Constraint("Vertical", 11))
sketch7.addConstraint(Sketcher.Constraint("Horizontal", 12))
sketch7.addConstraint(Sketcher.Constraint("Vertical", 13))
sketch7.addConstraint(Sketcher.Constraint("Horizontal", 14))
sketch7.addConstraint(Sketcher.Constraint("Vertical", 15))
sketch7.addConstraint(Sketcher.Constraint("Horizontal", 16))
sketch7.addConstraint(Sketcher.Constraint("Vertical", 17))
sketch7.addConstraint(Sketcher.Constraint("Horizontal", 18))
sketch7.addConstraint(Sketcher.Constraint("Vertical", 19))
sketch7.addConstraint(Sketcher.Constraint("Horizontal", 20))
sketch7.addConstraint(Sketcher.Constraint("Vertical", 21))
sketch7.addConstraint(Sketcher.Constraint("Horizontal", 22))
sketch7.addConstraint(Sketcher.Constraint("Vertical", 23))
sketch7.addConstraint(Sketcher.Constraint("Horizontal", 24))
sketch7.addConstraint(Sketcher.Constraint("Vertical", 25))
sketch7.addConstraint(Sketcher.Constraint("Horizontal", 26))
sketch7.addConstraint(Sketcher.Constraint("Vertical", 27))
sketch7.addConstraint(Sketcher.Constraint("Horizontal", 28))
sketch7.addConstraint(Sketcher.Constraint("Vertical", 29))
sketch7.addConstraint(Sketcher.Constraint("Horizontal", 30))
sketch7.addConstraint(Sketcher.Constraint("Vertical", 31))
sketch7.addConstraint(Sketcher.Constraint("Horizontal", 32))
sketch7.addConstraint(Sketcher.Constraint("Vertical", 33))
sketch7.addConstraint(Sketcher.Constraint("Horizontal", 34))
sketch7.addConstraint(Sketcher.Constraint("Vertical", 35))
sketch7.addConstraint(Sketcher.Constraint("Horizontal", 36))
sketch7.addConstraint(Sketcher.Constraint("Vertical", 37))
sketch7.addConstraint(Sketcher.Constraint("Horizontal", 38))
sketch7.addConstraint(Sketcher.Constraint("Vertical", 39))
sketch7.addConstraint(Sketcher.Constraint("Horizontal", 40))
sketch7.addConstraint(Sketcher.Constraint("Vertical", 41))
sketch7.addConstraint(Sketcher.Constraint("Horizontal", 42))
sketch7.addConstraint(Sketcher.Constraint("Vertical", 43))
sketch7.addConstraint(Sketcher.Constraint("Horizontal", 44))
sketch7.addConstraint(Sketcher.Constraint("Horizontal", 45))
sketch7.addConstraint(Sketcher.Constraint("Vertical", 46))
sketch7.addConstraint(Sketcher.Constraint("Horizontal", 47))
sketch7.addConstraint(Sketcher.Constraint("Vertical", 48))
sketch7.addConstraint(Sketcher.Constraint("Horizontal", 49))
sketch7.addConstraint(Sketcher.Constraint("Vertical", 50))
sketch7.addConstraint(Sketcher.Constraint("Horizontal", 51))
sketch7.addConstraint(Sketcher.Constraint("Vertical", 52))
sketch7.addConstraint(Sketcher.Constraint("Horizontal", 53))
sketch7.addConstraint(Sketcher.Constraint("Vertical", 54))
sketch7.addConstraint(Sketcher.Constraint("Horizontal", 55))
sketch7.addConstraint(Sketcher.Constraint("Vertical", 56))
sketch7.addConstraint(Sketcher.Constraint("Horizontal", 57))
sketch7.addConstraint(Sketcher.Constraint("Vertical", 58))
sketch7.addConstraint(Sketcher.Constraint("Horizontal", 59))
sketch7.addConstraint(Sketcher.Constraint("Vertical", 60))
sketch7.addConstraint(Sketcher.Constraint("Horizontal", 61))
sketch7.addConstraint(Sketcher.Constraint("Vertical", 62))
sketch7.addConstraint(Sketcher.Constraint("Horizontal", 63))
sketch7.addConstraint(Sketcher.Constraint("Vertical", 64))
sketch7.addConstraint(Sketcher.Constraint("Horizontal", 65))
sketch7.addConstraint(Sketcher.Constraint("Vertical", 66))
sketch7.addConstraint(Sketcher.Constraint("Horizontal", 67))
sketch7.addConstraint(Sketcher.Constraint("Vertical", 68))
sketch7.addConstraint(Sketcher.Constraint("Horizontal", 69))
sketch7.addConstraint(Sketcher.Constraint("Vertical", 70))
sketch7.addConstraint(Sketcher.Constraint("Horizontal", 71))
sketch7.addConstraint(Sketcher.Constraint("Vertical", 72))
sketch7.addConstraint(Sketcher.Constraint("Vertical", 74))
sketch7.addConstraint(Sketcher.Constraint("Horizontal", 76))
sketch7.addConstraint(Sketcher.Constraint("Vertical", 77))
sketch7.addConstraint(Sketcher.Constraint("Horizontal", 78))
sketch7.addConstraint(Sketcher.Constraint("Vertical", 79))
sketch7.addConstraint(Sketcher.Constraint("Horizontal", 80))
sketch7.addConstraint(Sketcher.Constraint("Vertical", 81))
sketch7.addConstraint(Sketcher.Constraint("Horizontal", 82))
sketch7.addConstraint(Sketcher.Constraint("Vertical", 83))
sketch7.addConstraint(Sketcher.Constraint("Horizontal", 84))
sketch7.addConstraint(Sketcher.Constraint("Vertical", 85))
sketch7.addConstraint(Sketcher.Constraint("Horizontal", 86))
sketch7.addConstraint(Sketcher.Constraint("Vertical", 87))
sketch7.addConstraint(Sketcher.Constraint("Horizontal", 88))
sketch7.addConstraint(Sketcher.Constraint("Vertical", 89))
sketch7.addConstraint(Sketcher.Constraint("Coincident", 2, 3, 0, 3))
sketch7.addConstraint(Sketcher.Constraint("Coincident", 75, 3, 73, 3))
sketch7.addConstraint(Sketcher.Constraint("Equal", 2, 73))
sketch7.addConstraint(Sketcher.Constraint("Equal", 0, 75))
sketch7.addConstraint(Sketcher.Constraint("Symmetric", 32, 2, 36, 2, -2))
sketch7.addConstraint(Sketcher.Constraint("Symmetric", 30, 2, 38, 2, -2))
sketch7.addConstraint(Sketcher.Constraint("Symmetric", 28, 2, 40, 2, -2))
sketch7.addConstraint(Sketcher.Constraint("Symmetric", 26, 2, 42, 2, -2))
sketch7.addConstraint(Sketcher.Constraint("Symmetric", 48, 2, 77, 2, -2))
sketch7.addConstraint(Sketcher.Constraint("Symmetric", 45, 2, 78, 2, -2))
sketch7.addConstraint(Sketcher.Constraint("Symmetric", 82, 2, 86, 2, -2))
sketch7.addConstraint(Sketcher.Constraint("Symmetric", 80, 2, 88, 2, -2))
sketch7.addConstraint(Sketcher.Constraint("PointOnObject", 34, 2, -2))
sketch7.addConstraint(Sketcher.Constraint("PointOnObject", 84, 2, -2))
sketch7.addConstraint(Sketcher.Constraint("Horizontal", 2, 1, 5, 2))
sketch7.addConstraint(Sketcher.Constraint("Horizontal", 4, 2, 7, 2))
sketch7.addConstraint(Sketcher.Constraint("Horizontal", 6, 2, 9, 2))
sketch7.addConstraint(Sketcher.Constraint("Horizontal", 8, 2, 11, 2))
sketch7.addConstraint(Sketcher.Constraint("Horizontal", 10, 2, 13, 2))
sketch7.addConstraint(Sketcher.Constraint("Horizontal", 12, 2, 15, 2))
sketch7.addConstraint(Sketcher.Constraint("Horizontal", 14, 2, 17, 2))
sketch7.addConstraint(Sketcher.Constraint("Horizontal", 16, 2, 19, 2))
sketch7.addConstraint(Sketcher.Constraint("Horizontal", 18, 2, 21, 2))
sketch7.addConstraint(Sketcher.Constraint("Horizontal", 20, 2, 23, 2))
sketch7.addConstraint(Sketcher.Constraint("Horizontal", 22, 2, 25, 2))
sketch7.addConstraint(Sketcher.Constraint("Horizontal", 24, 2, 27, 2))
sketch7.addConstraint(Sketcher.Constraint("Horizontal", 26, 2, 29, 2))
sketch7.addConstraint(Sketcher.Constraint("Horizontal", 28, 2, 31, 2))
sketch7.addConstraint(Sketcher.Constraint("Horizontal", 30, 2, 33, 2))
sketch7.addConstraint(Sketcher.Constraint("Horizontal", 47, 2, 50, 2))
sketch7.addConstraint(Sketcher.Constraint("Horizontal", 49, 2, 52, 2))
sketch7.addConstraint(Sketcher.Constraint("Horizontal", 51, 2, 54, 2))
sketch7.addConstraint(Sketcher.Constraint("Horizontal", 53, 2, 56, 2))
sketch7.addConstraint(Sketcher.Constraint("Horizontal", 55, 2, 58, 2))
sketch7.addConstraint(Sketcher.Constraint("Horizontal", 57, 2, 60, 2))
sketch7.addConstraint(Sketcher.Constraint("Horizontal", 59, 2, 62, 2))
sketch7.addConstraint(Sketcher.Constraint("Horizontal", 61, 2, 64, 2))
sketch7.addConstraint(Sketcher.Constraint("Horizontal", 63, 2, 66, 2))
sketch7.addConstraint(Sketcher.Constraint("Horizontal", 65, 2, 68, 2))
sketch7.addConstraint(Sketcher.Constraint("Horizontal", 67, 2, 70, 2))
sketch7.addConstraint(Sketcher.Constraint("Horizontal", 69, 2, 72, 2))
sketch7.addConstraint(Sketcher.Constraint("Horizontal", 71, 2, 79, 2))
sketch7.addConstraint(Sketcher.Constraint("Horizontal", 78, 2, 81, 2))
sketch7.addConstraint(Sketcher.Constraint("Horizontal", 80, 2, 83, 2))
sketch7.addConstraint(Sketcher.Constraint("Vertical", 2, 3, 73, 3))
sketch7.addConstraint(Sketcher.Constraint("Vertical", 75, 3, 2, 1))
sketch7.addConstraint(Sketcher.Constraint("Vertical", 29, 2, 45, 2))
sketch7.addConstraint(Sketcher.Constraint("Vertical", 27, 2, 47, 2))
sketch7.addConstraint(Sketcher.Constraint("Vertical", 25, 2, 49, 2))
sketch7.addConstraint(Sketcher.Constraint("Vertical", 23, 2, 51, 2))
sketch7.addConstraint(Sketcher.Constraint("Vertical", 21, 2, 53, 2))
sketch7.addConstraint(Sketcher.Constraint("Vertical", 19, 2, 55, 2))
sketch7.addConstraint(Sketcher.Constraint("Vertical", 17, 2, 57, 2))
sketch7.addConstraint(Sketcher.Constraint("Vertical", 15, 2, 59, 2))
sketch7.addConstraint(Sketcher.Constraint("Vertical", 13, 2, 61, 2))
sketch7.addConstraint(Sketcher.Constraint("Vertical", 11, 2, 63, 2))
sketch7.addConstraint(Sketcher.Constraint("Vertical", 9, 2, 65, 2))
sketch7.addConstraint(Sketcher.Constraint("Vertical", 7, 2, 67, 2))
sketch7.addConstraint(Sketcher.Constraint("Vertical", 5, 2, 69, 2))
sketch7.addConstraint(Sketcher.Constraint("Vertical", 44, 2, 71, 2))
sketch7.addConstraint(Sketcher.Constraint("Vertical", 39, 2, 80, 2))
sketch7.addConstraint(Sketcher.Constraint("Vertical", 37, 2, 82, 2))
sketch7.addConstraint(Sketcher.Constraint("Equal", 4, 6))
sketch7.addConstraint(Sketcher.Constraint("Equal", 6, 8))
sketch7.addConstraint(Sketcher.Constraint("Equal", 8, 10))
sketch7.addConstraint(Sketcher.Constraint("Equal", 10, 12))
sketch7.addConstraint(Sketcher.Constraint("Equal", 12, 14))
sketch7.addConstraint(Sketcher.Constraint("Equal", 14, 16))
sketch7.addConstraint(Sketcher.Constraint("Equal", 16, 18))
sketch7.addConstraint(Sketcher.Constraint("Equal", 18, 20))
sketch7.addConstraint(Sketcher.Constraint("Equal", 20, 22))
sketch7.addConstraint(Sketcher.Constraint("Equal", 22, 24))
sketch7.addConstraint(Sketcher.Constraint("Equal", 24, 26))
sketch7.addConstraint(Sketcher.Constraint("Equal", 26, 28))
sketch7.addConstraint(Sketcher.Constraint("Equal", 28, 30))
sketch7.addConstraint(Sketcher.Constraint("Equal", 30, 32))
sketch7.addConstraint(Sketcher.Constraint("Equal", 32, 34))
sketch7.addConstraint(Sketcher.Constraint("Equal", 88, 3))
sketch7.addConstraint(Sketcher.Constraint("Equal", 41, 46))
sketch7.addConstraint(Sketcher.Constraint("Radius", 0, 8.0))
sketch7.addConstraint(Sketcher.Constraint("Radius", 2, 10.0))
sketch7.addConstraint(Sketcher.Constraint("DistanceX", 4, 2, 4, 1, 1.0))
sketch7.addConstraint(Sketcher.Constraint("DistanceY", -1, 1, 0, 3, 40.0))
sketch7.addConstraint(Sketcher.Constraint("DistanceY", -1, 1, 73, 3, 18.0))
pocket4 = doc.addObject("PartDesign::Pocket", "Pocket003")
body.addObject(pocket4)
pocket4.Profile = sketch7
pocket4.Length = 6
pocket4.Reversed = True

# Sketch on YZ plane
sketch8 = doc.addObject("Sketcher::SketchObject", "Sketch007")
body.addObject(sketch8)
sketch8.AttachmentSupport = (doc.YZ_Plane, [""])
sketch8.MapMode = "FlatFace"
add_polygon(sketch8, [(24, 58), (24, 46), (5, 46), (0, 58)])  # lines 0-3
add_polygon(sketch8, [(24, 12), (24, 0), (0, 0), (5, 12)])  # lines 4-7
sketch8.addConstraint(Sketcher.Constraint("Vertical", 0))
sketch8.addConstraint(Sketcher.Constraint("Horizontal", 1))
sketch8.addConstraint(Sketcher.Constraint("Horizontal", 3))
sketch8.addConstraint(Sketcher.Constraint("Vertical", 4))
sketch8.addConstraint(Sketcher.Constraint("Horizontal", 5))
sketch8.addConstraint(Sketcher.Constraint("Horizontal", 7))
sketch8.addConstraint(Sketcher.Constraint("Coincident", 5, 2, -1, 1))
sketch8.addConstraint(Sketcher.Constraint("PointOnObject", 2, 2, -2))
sketch8.addConstraint(Sketcher.Constraint("Vertical", 3, 2, 4, 2))
sketch8.addConstraint(Sketcher.Constraint("Vertical", 1, 2, 6, 2))
sketch8.addConstraint(Sketcher.Constraint("Equal", 0, 4))
sketch8.addConstraint(Sketcher.Constraint("DistanceX", 1, 2, 1, 1, 19.0))
sketch8.addConstraint(Sketcher.Constraint("DistanceX", 3, 1, 3, 2, 24.0))
sketch8.addConstraint(Sketcher.Constraint("DistanceY", 0, 2, 0, 1, 12.0))
sketch8.addConstraint(Sketcher.Constraint("DistanceY", -1, 1, 0, 2, 46.0))
pocket5 = doc.addObject("PartDesign::Pocket", "Pocket004")
body.addObject(pocket5)
pocket5.Profile = sketch8
pocket5.Type = "ThroughAll"
pocket5.Reversed = True

# Sketch on YZ plane
sketch9 = doc.addObject("Sketcher::SketchObject", "Sketch008")
body.addObject(sketch9)
sketch9.AttachmentSupport = (doc.YZ_Plane, [""])
sketch9.MapMode = "FlatFace"
sketch9.AttachmentOffset = App.Placement(App.Vector(0, 0, 12), App.Rotation())
add_polygon(sketch9, [(17, 46), (17, 12), (24, 12), (24, 46)])  # lines 0-3
sketch9.addConstraint(Sketcher.Constraint("Vertical", 0))
sketch9.addConstraint(Sketcher.Constraint("Horizontal", 1))
sketch9.addConstraint(Sketcher.Constraint("Vertical", 2))
sketch9.addConstraint(Sketcher.Constraint("Horizontal", 3))
sketch9.addConstraint(Sketcher.Constraint("DistanceX", 1, 1, 1, 2, 7.0))
sketch9.addConstraint(Sketcher.Constraint("DistanceY", 0, 2, 0, 1, 34.0))
sketch9.addConstraint(Sketcher.Constraint("DistanceX", -1, 1, 0, 2, 17.0))
sketch9.addConstraint(Sketcher.Constraint("DistanceY", -1, 1, 0, 2, 12.0))
pocket6 = doc.addObject("PartDesign::Pocket", "Pocket005")
body.addObject(pocket6)
pocket6.Profile = sketch9
pocket6.Length = 5
body2 = doc.addObject("PartDesign::Body", "Body001")

# Sketch on XZ plane
sketch10 = doc.addObject("Sketcher::SketchObject", "Sketch009")
body2.addObject(sketch10)
sketch10.AttachmentSupport = (doc.getObject("XZ_Plane001"), [""])
sketch10.MapMode = "FlatFace"
sketch10.AttachmentOffset = App.Placement(App.Vector(0, 0, 50), App.Rotation())
add_polygon(sketch10, [(0, 58), (0, 0), (46, 0), (46, 58)])  # lines 0-3
sketch10.addGeometry(Part.Circle(App.Vector(10.5, 13.5, 0), App.Vector(0, 0, 1), 1.75), False)  # 4
sketch10.addGeometry(Part.Circle(App.Vector(41.5, 13.5, 0), App.Vector(0, 0, 1), 1.75), False)  # 5
sketch10.addGeometry(Part.Circle(App.Vector(10.5, 44.5, 0), App.Vector(0, 0, 1), 1.75), False)  # 6
sketch10.addGeometry(Part.Circle(App.Vector(26, 29, 0), App.Vector(0, 0, 1), 11.5), False)  # 7
sketch10.addGeometry(Part.Circle(App.Vector(41.5, 44.5, 0), App.Vector(0, 0, 1), 1.75), False)  # 8
sketch10.addConstraint(Sketcher.Constraint("Vertical", 0))
sketch10.addConstraint(Sketcher.Constraint("Horizontal", 1))
sketch10.addConstraint(Sketcher.Constraint("Vertical", 2))
sketch10.addConstraint(Sketcher.Constraint("Horizontal", 3))
sketch10.addConstraint(Sketcher.Constraint("Coincident", 0, 2, -1, 1))
sketch10.addConstraint(Sketcher.Constraint("Equal", 4, 5))
sketch10.addConstraint(Sketcher.Constraint("Equal", 5, 6))
sketch10.addConstraint(Sketcher.Constraint("Equal", 6, 8))
sketch10.addConstraint(Sketcher.Constraint("Horizontal", 4, 3, 5, 3))
sketch10.addConstraint(Sketcher.Constraint("Horizontal", 6, 3, 8, 3))
sketch10.addConstraint(Sketcher.Constraint("Vertical", 4, 3, 6, 3))
sketch10.addConstraint(Sketcher.Constraint("Vertical", 5, 3, 8, 3))
sketch10.addConstraint(Sketcher.Constraint("Diameter", 7, 23.0))
sketch10.addConstraint(Sketcher.Constraint("Diameter", 4, 3.5))
sketch10.addConstraint(Sketcher.Constraint("DistanceX", 1, 1, 1, 2, 46.0))
sketch10.addConstraint(Sketcher.Constraint("DistanceY", 0, 2, 0, 1, 58.0))
sketch10.addConstraint(Sketcher.Constraint("DistanceX", -1, 1, 7, 3, 26.0))
sketch10.addConstraint(Sketcher.Constraint("DistanceY", -1, 1, 7, 3, 29.0))
sketch10.addConstraint(Sketcher.Constraint("DistanceX", 4, 3, 5, 3, 31.0))
sketch10.addConstraint(Sketcher.Constraint("DistanceY", 4, 3, 6, 3, 31.0))
sketch10.addConstraint(Sketcher.Constraint("DistanceX", -1, 1, 4, 3, 10.5))
sketch10.addConstraint(Sketcher.Constraint("DistanceY", -1, 1, 4, 3, 13.5))
pad4 = doc.addObject("PartDesign::Pad", "Pad003")
body2.addObject(pad4)
pad4.Profile = sketch10
pad4.Length = 5

# Sketch on XZ plane
sketch11 = doc.addObject("Sketcher::SketchObject", "Sketch010")
body2.addObject(sketch11)
sketch11.AttachmentSupport = (doc.getObject("XZ_Plane001"), [""])
sketch11.MapMode = "FlatFace"
sketch11.AttachmentOffset = App.Placement(App.Vector(0, 0, 50), App.Rotation())
sketch11.addGeometry(Part.Circle(App.Vector(42, 3, 0), App.Vector(0, 0, 1), 1.5), False)
sketch11.addGeometry(Part.Circle(App.Vector(4, 3, 0), App.Vector(0, 0, 1), 1.5), False)
sketch11.addGeometry(Part.Circle(App.Vector(42, 55, 0), App.Vector(0, 0, 1), 1.5), False)
sketch11.addGeometry(Part.Circle(App.Vector(4, 55, 0), App.Vector(0, 0, 1), 1.5), False)
sketch11.addConstraint(Sketcher.Constraint("Equal", 0, 1))
sketch11.addConstraint(Sketcher.Constraint("Equal", 1, 2))
sketch11.addConstraint(Sketcher.Constraint("Equal", 2, 3))
sketch11.addConstraint(Sketcher.Constraint("Horizontal", 0, 3, 1, 3))
sketch11.addConstraint(Sketcher.Constraint("Horizontal", 2, 3, 3, 3))
sketch11.addConstraint(Sketcher.Constraint("Vertical", 0, 3, 2, 3))
sketch11.addConstraint(Sketcher.Constraint("Vertical", 1, 3, 3, 3))
sketch11.addConstraint(Sketcher.Constraint("Diameter", 0, 3.0))
sketch11.addConstraint(Sketcher.Constraint("DistanceX", -1, 1, 0, 3, 42.0))
sketch11.addConstraint(Sketcher.Constraint("DistanceY", -1, 1, 0, 3, 3.0))
sketch11.addConstraint(Sketcher.Constraint("DistanceX", -1, 1, 1, 3, 4.0))
sketch11.addConstraint(Sketcher.Constraint("DistanceY", -1, 1, 2, 3, 55.0))
pocket7 = doc.addObject("PartDesign::Pocket", "Pocket006")
body2.addObject(pocket7)
pocket7.Profile = sketch11
pocket7.Type = "ThroughAll"
pocket7.Reversed = True

doc.recompute()
